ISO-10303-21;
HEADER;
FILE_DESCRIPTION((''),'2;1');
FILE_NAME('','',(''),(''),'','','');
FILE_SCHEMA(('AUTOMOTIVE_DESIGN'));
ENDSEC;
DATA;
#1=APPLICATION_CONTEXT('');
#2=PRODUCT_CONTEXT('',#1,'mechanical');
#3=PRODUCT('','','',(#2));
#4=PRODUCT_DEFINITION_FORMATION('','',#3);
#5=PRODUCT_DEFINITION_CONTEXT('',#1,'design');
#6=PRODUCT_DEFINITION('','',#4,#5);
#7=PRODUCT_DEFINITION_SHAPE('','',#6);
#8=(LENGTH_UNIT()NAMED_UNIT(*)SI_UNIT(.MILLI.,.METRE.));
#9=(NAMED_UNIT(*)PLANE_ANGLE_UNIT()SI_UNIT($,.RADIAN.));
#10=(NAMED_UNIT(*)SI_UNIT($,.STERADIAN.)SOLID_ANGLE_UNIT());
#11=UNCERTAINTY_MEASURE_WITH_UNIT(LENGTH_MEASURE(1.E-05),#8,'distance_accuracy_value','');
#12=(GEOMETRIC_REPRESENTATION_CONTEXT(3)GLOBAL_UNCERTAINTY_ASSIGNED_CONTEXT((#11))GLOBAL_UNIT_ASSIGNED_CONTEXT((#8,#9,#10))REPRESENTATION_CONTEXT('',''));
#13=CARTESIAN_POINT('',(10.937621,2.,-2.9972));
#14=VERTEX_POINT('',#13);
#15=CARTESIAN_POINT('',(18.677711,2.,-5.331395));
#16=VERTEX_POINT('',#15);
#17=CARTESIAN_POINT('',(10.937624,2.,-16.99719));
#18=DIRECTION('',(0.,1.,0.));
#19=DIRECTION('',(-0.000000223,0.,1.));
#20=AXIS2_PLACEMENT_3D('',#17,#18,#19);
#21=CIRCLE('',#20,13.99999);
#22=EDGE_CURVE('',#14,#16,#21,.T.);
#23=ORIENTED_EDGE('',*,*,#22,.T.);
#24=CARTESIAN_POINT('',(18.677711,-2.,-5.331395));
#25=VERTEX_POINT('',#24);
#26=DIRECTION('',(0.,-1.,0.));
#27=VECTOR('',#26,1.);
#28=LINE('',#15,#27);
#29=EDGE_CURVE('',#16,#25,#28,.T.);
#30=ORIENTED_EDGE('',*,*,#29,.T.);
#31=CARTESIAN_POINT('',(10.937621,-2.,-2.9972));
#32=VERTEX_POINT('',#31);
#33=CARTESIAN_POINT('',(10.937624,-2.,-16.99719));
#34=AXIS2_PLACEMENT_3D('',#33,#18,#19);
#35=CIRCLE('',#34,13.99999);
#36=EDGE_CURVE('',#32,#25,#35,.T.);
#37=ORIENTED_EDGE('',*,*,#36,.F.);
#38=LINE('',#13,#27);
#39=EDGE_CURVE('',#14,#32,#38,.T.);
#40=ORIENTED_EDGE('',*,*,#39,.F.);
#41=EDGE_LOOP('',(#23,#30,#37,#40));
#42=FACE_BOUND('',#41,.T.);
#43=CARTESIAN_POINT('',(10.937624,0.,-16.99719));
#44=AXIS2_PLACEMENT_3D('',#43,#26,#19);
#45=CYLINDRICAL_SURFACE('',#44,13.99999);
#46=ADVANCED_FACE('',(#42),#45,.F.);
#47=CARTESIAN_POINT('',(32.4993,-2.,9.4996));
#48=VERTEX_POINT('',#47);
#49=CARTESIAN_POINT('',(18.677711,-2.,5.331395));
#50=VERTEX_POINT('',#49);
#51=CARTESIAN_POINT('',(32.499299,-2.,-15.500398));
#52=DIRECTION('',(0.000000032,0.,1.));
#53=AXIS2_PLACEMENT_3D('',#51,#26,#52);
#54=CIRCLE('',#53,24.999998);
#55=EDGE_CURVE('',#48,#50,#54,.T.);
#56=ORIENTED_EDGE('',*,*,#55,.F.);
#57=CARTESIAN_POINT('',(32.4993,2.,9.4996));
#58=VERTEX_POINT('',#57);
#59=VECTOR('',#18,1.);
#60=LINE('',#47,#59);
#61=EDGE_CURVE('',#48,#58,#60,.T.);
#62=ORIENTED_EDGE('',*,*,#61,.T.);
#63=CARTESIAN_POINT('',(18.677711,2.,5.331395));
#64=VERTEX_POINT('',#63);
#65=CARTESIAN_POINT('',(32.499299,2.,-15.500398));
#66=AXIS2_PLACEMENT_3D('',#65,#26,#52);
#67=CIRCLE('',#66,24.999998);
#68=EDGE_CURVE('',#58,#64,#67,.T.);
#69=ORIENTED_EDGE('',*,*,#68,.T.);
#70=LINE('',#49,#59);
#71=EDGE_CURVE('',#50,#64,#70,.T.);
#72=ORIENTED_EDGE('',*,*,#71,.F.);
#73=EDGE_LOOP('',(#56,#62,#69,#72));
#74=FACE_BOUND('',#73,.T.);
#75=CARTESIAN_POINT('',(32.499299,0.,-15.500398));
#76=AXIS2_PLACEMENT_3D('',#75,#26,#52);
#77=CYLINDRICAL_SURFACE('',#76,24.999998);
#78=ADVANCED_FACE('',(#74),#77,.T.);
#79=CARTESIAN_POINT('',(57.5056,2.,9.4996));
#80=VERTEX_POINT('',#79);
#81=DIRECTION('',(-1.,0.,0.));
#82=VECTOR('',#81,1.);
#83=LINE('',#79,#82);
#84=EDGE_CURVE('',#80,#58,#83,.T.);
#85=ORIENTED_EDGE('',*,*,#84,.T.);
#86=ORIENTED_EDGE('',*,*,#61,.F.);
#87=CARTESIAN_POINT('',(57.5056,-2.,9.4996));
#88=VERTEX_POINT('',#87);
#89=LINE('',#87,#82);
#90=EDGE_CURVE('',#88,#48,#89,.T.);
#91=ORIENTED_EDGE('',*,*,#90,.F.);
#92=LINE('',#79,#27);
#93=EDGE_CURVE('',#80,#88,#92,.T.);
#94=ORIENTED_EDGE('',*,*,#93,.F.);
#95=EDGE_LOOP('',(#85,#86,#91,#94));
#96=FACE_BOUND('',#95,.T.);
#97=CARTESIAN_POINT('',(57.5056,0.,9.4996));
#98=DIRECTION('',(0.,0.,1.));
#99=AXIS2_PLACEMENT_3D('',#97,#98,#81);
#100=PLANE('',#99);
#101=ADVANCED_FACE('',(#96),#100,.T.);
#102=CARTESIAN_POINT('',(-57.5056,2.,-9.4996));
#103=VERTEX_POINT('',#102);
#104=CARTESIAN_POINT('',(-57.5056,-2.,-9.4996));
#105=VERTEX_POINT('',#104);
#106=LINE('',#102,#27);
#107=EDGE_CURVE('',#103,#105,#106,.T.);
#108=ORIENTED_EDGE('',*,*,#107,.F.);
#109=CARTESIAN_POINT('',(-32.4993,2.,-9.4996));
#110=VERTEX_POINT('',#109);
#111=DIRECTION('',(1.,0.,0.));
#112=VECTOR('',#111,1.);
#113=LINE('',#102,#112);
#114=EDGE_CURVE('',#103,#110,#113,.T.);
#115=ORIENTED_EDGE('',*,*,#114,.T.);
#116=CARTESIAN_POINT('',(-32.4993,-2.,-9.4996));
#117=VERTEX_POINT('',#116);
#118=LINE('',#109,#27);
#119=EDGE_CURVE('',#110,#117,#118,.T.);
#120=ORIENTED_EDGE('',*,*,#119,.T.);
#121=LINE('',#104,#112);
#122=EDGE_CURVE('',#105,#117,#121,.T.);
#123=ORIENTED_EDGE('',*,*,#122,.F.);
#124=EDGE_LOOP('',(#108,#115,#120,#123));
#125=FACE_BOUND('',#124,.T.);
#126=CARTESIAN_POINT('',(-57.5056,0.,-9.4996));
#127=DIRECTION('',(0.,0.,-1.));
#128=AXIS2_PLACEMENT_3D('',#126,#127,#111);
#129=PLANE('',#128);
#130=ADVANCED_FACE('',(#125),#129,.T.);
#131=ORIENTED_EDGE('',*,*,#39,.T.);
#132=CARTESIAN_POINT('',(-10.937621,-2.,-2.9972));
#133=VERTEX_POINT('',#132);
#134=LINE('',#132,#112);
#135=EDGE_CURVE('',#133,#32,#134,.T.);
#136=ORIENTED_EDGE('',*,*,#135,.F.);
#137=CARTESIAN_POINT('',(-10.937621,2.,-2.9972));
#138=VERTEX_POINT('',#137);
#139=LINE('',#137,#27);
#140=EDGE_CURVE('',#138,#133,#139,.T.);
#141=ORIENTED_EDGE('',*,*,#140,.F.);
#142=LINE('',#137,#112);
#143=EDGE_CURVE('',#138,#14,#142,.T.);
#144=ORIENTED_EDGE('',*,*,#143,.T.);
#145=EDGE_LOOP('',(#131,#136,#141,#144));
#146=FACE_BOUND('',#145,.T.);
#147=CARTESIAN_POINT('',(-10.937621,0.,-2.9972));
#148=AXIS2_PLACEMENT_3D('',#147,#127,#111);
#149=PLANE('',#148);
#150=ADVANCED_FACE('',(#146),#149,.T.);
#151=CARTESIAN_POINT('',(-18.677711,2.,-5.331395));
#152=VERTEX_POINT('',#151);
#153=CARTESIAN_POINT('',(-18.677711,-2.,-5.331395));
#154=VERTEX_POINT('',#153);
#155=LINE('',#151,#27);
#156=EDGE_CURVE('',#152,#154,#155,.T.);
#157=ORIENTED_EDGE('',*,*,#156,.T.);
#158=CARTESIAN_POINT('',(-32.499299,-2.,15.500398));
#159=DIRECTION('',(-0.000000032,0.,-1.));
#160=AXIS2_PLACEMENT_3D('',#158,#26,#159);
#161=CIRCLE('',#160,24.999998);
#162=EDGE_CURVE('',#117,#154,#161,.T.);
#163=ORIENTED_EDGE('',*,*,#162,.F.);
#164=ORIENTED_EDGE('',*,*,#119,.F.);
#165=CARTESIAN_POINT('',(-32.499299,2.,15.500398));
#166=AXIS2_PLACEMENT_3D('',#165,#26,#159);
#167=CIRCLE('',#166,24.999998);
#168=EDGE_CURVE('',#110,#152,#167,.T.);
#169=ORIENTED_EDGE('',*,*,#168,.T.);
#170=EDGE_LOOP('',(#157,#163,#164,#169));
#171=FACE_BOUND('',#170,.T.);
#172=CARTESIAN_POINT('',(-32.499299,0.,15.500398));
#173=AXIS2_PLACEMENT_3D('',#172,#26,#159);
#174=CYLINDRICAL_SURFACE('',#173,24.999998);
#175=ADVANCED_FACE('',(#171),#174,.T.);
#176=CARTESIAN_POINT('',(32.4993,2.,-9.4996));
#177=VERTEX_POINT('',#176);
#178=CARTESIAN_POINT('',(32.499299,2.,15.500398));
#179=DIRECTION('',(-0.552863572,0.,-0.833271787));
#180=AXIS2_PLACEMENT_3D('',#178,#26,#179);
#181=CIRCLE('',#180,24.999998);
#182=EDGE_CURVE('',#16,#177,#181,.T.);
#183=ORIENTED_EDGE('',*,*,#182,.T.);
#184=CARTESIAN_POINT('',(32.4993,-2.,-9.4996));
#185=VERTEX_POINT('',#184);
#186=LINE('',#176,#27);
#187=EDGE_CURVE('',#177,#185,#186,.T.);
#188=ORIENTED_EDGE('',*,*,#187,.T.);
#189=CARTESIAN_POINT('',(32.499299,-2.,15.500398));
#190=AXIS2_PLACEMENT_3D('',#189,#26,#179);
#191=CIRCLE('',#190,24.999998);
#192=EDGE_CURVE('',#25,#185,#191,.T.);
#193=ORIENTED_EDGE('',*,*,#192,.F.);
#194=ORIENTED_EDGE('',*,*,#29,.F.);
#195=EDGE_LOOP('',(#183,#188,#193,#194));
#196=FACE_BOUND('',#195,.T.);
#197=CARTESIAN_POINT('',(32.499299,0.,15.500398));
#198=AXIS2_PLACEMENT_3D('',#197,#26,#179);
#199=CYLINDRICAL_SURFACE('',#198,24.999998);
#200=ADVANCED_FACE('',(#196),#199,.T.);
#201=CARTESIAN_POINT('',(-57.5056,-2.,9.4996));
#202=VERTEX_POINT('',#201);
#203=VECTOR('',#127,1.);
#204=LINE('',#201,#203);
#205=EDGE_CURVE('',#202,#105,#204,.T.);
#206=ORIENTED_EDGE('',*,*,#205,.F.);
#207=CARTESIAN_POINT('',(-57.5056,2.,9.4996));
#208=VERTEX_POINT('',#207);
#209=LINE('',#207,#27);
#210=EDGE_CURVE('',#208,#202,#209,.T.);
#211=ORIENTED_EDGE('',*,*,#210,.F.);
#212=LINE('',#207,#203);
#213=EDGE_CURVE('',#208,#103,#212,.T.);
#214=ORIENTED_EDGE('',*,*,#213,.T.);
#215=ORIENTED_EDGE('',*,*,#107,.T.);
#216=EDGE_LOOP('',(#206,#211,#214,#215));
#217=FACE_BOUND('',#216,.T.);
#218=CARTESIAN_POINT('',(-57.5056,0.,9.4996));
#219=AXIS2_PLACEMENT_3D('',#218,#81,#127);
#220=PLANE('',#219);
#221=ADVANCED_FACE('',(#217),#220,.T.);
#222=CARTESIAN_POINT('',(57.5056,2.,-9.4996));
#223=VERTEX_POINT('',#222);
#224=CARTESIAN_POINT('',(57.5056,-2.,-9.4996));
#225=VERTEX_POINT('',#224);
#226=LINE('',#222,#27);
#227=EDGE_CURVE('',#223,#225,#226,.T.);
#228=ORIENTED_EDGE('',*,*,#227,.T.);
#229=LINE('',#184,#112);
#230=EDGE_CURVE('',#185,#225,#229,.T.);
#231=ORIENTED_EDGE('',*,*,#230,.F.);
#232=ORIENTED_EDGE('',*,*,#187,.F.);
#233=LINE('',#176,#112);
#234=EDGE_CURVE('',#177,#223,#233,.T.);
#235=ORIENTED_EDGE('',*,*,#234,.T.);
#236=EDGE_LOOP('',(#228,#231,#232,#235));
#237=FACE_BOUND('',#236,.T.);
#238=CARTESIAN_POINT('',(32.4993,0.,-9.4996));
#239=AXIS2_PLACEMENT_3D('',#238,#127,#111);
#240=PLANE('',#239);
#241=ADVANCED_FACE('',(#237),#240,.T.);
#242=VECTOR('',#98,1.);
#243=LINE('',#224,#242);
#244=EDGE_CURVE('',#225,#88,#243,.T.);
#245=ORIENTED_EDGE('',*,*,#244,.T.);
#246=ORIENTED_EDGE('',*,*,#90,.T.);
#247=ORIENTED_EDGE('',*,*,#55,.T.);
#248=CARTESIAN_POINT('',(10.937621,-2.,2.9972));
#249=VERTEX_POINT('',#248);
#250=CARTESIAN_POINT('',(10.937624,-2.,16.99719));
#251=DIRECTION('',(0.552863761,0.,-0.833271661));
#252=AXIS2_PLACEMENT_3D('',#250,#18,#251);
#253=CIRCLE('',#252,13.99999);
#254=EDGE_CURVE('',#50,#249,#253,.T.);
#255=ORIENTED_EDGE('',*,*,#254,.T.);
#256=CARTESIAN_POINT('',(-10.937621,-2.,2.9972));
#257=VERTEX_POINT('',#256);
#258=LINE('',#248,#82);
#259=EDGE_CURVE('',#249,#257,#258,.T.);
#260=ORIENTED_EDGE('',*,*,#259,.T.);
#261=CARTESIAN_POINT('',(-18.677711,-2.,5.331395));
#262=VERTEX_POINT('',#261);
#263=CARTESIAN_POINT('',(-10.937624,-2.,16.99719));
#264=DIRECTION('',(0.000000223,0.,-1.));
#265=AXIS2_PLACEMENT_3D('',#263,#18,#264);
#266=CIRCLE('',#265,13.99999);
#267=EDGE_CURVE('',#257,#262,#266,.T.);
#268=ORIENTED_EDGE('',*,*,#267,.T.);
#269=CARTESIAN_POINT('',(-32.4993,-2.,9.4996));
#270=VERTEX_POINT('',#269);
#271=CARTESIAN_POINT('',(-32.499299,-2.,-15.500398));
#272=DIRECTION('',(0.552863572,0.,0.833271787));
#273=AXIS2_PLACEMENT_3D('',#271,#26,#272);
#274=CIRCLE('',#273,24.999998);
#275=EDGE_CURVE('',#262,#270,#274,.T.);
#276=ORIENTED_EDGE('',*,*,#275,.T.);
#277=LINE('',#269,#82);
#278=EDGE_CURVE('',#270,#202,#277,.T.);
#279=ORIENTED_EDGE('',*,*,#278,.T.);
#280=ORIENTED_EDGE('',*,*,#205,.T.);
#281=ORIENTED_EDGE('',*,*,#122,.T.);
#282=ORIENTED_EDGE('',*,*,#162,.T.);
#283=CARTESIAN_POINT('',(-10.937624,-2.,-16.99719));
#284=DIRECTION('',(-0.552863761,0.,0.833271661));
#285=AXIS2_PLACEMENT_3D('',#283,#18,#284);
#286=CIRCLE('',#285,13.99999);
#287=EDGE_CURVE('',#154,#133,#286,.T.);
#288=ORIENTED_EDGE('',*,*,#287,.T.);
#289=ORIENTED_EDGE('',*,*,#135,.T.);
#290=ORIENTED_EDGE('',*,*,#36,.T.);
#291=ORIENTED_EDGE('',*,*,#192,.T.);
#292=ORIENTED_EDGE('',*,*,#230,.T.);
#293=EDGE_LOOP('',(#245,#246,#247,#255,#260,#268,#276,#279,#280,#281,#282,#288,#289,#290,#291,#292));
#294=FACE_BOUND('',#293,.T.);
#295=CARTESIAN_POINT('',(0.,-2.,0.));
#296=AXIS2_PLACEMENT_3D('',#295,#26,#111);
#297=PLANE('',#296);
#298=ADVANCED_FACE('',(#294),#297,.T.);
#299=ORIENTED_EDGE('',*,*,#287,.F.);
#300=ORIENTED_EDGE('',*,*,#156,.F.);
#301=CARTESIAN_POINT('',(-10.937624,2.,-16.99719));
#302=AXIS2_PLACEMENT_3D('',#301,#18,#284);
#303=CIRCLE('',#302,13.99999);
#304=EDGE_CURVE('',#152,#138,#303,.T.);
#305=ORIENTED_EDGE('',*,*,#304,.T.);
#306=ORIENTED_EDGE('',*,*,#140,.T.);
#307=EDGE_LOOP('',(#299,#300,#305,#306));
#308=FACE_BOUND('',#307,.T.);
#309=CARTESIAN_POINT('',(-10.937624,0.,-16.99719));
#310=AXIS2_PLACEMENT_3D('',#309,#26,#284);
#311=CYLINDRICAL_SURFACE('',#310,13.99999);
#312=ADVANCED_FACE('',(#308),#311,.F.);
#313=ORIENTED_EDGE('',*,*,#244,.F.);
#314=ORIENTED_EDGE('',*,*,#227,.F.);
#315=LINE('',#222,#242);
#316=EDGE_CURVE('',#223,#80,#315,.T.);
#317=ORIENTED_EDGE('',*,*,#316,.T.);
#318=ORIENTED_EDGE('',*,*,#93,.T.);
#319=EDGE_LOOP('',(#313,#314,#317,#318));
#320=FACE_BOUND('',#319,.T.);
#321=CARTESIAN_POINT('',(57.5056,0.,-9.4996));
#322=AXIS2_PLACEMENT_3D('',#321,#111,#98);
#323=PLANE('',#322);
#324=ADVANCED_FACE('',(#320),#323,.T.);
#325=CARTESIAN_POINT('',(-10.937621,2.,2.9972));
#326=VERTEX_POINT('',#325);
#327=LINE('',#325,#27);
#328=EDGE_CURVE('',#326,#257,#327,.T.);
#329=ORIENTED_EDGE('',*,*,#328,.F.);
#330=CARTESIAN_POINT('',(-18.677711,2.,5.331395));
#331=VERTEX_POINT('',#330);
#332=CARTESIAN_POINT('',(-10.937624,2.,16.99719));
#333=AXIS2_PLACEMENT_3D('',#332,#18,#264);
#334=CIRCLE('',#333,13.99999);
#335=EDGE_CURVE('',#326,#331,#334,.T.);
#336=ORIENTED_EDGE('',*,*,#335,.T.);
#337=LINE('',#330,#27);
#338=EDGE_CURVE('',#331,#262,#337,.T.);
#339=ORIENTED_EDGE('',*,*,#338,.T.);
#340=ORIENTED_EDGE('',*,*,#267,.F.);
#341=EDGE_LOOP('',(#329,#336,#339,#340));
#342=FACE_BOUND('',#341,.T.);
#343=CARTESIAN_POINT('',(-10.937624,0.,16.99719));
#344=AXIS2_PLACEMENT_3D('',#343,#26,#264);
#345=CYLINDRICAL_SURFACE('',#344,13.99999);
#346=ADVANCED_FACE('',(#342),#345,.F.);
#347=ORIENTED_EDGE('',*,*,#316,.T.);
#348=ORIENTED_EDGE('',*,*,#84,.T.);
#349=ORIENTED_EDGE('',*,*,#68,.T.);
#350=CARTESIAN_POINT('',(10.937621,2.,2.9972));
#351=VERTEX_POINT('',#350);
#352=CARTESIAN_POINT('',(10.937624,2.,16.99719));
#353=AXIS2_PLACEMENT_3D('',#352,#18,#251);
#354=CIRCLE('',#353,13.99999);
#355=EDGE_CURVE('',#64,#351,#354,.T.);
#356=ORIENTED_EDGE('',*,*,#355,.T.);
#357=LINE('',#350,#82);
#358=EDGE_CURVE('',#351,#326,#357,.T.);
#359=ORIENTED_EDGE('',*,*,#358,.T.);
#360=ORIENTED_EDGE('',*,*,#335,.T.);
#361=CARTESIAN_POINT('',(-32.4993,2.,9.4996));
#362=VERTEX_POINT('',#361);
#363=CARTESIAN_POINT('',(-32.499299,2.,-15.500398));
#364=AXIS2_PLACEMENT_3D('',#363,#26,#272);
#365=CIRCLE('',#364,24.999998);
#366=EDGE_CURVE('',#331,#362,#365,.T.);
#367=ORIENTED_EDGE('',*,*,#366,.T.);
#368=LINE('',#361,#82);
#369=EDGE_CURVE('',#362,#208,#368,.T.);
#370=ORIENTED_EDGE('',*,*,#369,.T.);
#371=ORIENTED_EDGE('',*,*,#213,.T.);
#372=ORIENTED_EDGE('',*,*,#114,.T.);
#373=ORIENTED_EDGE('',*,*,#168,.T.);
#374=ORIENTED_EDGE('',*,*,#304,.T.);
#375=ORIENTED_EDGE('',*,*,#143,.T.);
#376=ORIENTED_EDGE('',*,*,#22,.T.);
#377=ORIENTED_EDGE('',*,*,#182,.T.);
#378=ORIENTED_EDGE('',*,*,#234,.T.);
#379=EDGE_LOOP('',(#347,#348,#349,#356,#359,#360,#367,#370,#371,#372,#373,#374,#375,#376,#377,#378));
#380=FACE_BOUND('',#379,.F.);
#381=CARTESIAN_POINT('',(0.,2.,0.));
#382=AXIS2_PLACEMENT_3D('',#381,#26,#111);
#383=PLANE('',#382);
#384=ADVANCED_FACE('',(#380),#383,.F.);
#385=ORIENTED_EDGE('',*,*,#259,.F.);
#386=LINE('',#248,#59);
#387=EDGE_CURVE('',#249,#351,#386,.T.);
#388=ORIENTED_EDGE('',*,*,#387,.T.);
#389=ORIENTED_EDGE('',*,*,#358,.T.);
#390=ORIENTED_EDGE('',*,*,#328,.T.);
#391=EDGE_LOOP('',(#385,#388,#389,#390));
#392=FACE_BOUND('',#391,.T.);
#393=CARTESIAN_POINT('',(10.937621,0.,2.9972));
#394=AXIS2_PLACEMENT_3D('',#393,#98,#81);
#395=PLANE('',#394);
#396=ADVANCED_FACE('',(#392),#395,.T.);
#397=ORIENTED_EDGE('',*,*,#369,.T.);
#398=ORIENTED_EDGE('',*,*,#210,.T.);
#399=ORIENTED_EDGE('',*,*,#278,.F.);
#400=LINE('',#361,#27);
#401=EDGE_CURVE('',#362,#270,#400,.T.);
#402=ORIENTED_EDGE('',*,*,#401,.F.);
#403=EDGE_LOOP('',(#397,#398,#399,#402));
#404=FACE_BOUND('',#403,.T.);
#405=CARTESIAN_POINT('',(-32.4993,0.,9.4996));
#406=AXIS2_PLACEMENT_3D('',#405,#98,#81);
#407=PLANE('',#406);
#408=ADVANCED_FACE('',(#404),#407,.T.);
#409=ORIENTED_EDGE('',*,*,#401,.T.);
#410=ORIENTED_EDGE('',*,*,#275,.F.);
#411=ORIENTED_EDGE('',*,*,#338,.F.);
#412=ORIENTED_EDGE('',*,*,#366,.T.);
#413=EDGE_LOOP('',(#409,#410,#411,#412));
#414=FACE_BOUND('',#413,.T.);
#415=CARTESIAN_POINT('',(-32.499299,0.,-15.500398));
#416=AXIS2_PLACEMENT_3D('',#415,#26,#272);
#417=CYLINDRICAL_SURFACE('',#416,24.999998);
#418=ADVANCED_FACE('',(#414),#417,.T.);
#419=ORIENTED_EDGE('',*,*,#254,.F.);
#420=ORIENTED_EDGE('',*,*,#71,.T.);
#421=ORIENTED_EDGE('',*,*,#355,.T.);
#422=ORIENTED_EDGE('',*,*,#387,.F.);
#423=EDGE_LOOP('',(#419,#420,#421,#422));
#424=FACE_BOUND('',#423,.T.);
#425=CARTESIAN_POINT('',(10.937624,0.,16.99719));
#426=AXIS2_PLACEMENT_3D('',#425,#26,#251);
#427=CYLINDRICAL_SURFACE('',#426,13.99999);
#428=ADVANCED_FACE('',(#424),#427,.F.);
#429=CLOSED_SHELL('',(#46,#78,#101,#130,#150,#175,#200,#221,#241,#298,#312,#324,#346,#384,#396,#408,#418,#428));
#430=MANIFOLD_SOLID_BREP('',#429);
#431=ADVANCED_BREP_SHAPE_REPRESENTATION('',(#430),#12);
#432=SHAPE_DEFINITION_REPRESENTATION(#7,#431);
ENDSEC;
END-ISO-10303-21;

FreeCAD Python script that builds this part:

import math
import FreeCAD as App
import Part
import Sketcher

V = App.Vector

doc = App.newDocument("Part")
body = doc.addObject("PartDesign::Body", "Body")

# Sketch on XZ plane
sketch1 = body.newObject("Sketcher::SketchObject", "Sketch")
sketch1.AttachmentSupport = (doc.getObject("XZ_Plane"), [""])
sketch1.MapMode = "FlatFace"
sketch1.addGeometry([
    Part.LineSegment(V(11, 3, 0), V(-11, 3, 0)),  # 0
    Part.ArcOfCircle(Part.Circle(V(-11, 17, 0), V(0, 0, 1), 14), math.radians(-124), math.radians(-90)),  # 1
    Part.ArcOfCircle(Part.Circle(V(-32, -16, 0), V(0, 0, 1), 25), math.radians(56), math.radians(90)),  # 2
    Part.LineSegment(V(-32, 9, 0), V(-58, 9, 0)),  # 3
    Part.LineSegment(V(-58, 9, 0), V(-58, -9, 0)),  # 4
    Part.LineSegment(V(-58, -9, 0), V(-32, -9, 0)),  # 5
    Part.ArcOfCircle(Part.Circle(V(-32, 16, 0), V(0, 0, 1), 25), math.radians(-90), math.radians(-56)),  # 6
    Part.ArcOfCircle(Part.Circle(V(-11, -17, 0), V(0, 0, 1), 14), math.radians(90), math.radians(124)),  # 7
    Part.LineSegment(V(-11, -3, 0), V(11, -3, 0)),  # 8
    Part.ArcOfCircle(Part.Circle(V(11, -17, 0), V(0, 0, 1), 14), math.radians(56), math.radians(90)),  # 9
    Part.ArcOfCircle(Part.Circle(V(32, 16, 0), V(0, 0, 1), 25), math.radians(-124), math.radians(-90)),  # 10
    Part.LineSegment(V(32, -9, 0), V(58, -9, 0)),  # 11
    Part.LineSegment(V(58, -9, 0), V(58, 9, 0)),  # 12
    Part.LineSegment(V(58, 9, 0), V(32, 9, 0)),  # 13
    Part.ArcOfCircle(Part.Circle(V(32, -16, 0), V(0, 0, 1), 25), math.radians(90), math.radians(124)),  # 14
    Part.ArcOfCircle(Part.Circle(V(11, 17, 0), V(0, 0, 1), 14), math.radians(-90), math.radians(-56)),  # 15
], False)
sketch1.addConstraint([
    Sketcher.Constraint("Tangent", 0, 2, 1, 2),
    Sketcher.Constraint("Tangent", 1, 1, 2, 1),
    Sketcher.Constraint("Tangent", 2, 2, 3, 1),
    Sketcher.Constraint("Coincident", 3, 2, 4, 1),
    Sketcher.Constraint("Coincident", 4, 2, 5, 1),
    Sketcher.Constraint("Tangent", 5, 2, 6, 1),
    Sketcher.Constraint("Tangent", 6, 2, 7, 2),
    Sketcher.Constraint("Tangent", 7, 1, 8, 1),
    Sketcher.Constraint("Tangent", 8, 2, 9, 2),
    Sketcher.Constraint("Tangent", 9, 1, 10, 1),
    Sketcher.Constraint("Tangent", 10, 2, 11, 1),
    Sketcher.Constraint("Coincident", 11, 2, 12, 1),
    Sketcher.Constraint("Coincident", 12, 2, 13, 1),
    Sketcher.Constraint("Tangent", 13, 2, 14, 1),
    Sketcher.Constraint("Tangent", 14, 2, 15, 2),
    Sketcher.Constraint("Tangent", 15, 1, 0, 1),
    Sketcher.Constraint("Horizontal", 0),
    Sketcher.Constraint("Horizontal", 3),
    Sketcher.Constraint("Vertical", 4),
    Sketcher.Constraint("Horizontal", 5),
    Sketcher.Constraint("Horizontal", 8),
    Sketcher.Constraint("Horizontal", 11),
    Sketcher.Constraint("Vertical", 12),
    Sketcher.Constraint("Horizontal", 13),
    Sketcher.Constraint("Equal", 2, 6),
    Sketcher.Constraint("Equal", 1, 7),
    Sketcher.Constraint("Equal", 7, 9),
    Sketcher.Constraint("Equal", 6, 10),
    Sketcher.Constraint("Equal", 10, 14),
    Sketcher.Constraint("Equal", 9, 15),
    Sketcher.Constraint("Symmetric", 1, 3, 9, 3, -1, 1),
    Sketcher.Constraint("Symmetric", 6, 3, 14, 3, -1, 1),
    Sketcher.Constraint("Symmetric", 3, 2, 11, 2, -1, 1),
    Sketcher.Constraint("Symmetric", 6, 3, 10, 3, -2),
    Sketcher.Constraint("Radius", 2, 24.999998),
    Sketcher.Constraint("Radius", 1, 13.99999),
    Sketcher.Constraint("DistanceX", 3, 2, 3, 1, 25.0063),
    Sketcher.Constraint("DistanceY", 4, 2, 4, 1, 18.9992),
    Sketcher.Constraint("DistanceX", 0, 2, 0, 1, 21.875242),
    Sketcher.Constraint("DistanceX", 2, 3, -1, 1, 32.499299),
])
pad1 = body.newObject("PartDesign::Pad", "Pad")
pad1.Profile = sketch1
pad1.Length = 4
pad1.Midplane = True

doc.recompute()
